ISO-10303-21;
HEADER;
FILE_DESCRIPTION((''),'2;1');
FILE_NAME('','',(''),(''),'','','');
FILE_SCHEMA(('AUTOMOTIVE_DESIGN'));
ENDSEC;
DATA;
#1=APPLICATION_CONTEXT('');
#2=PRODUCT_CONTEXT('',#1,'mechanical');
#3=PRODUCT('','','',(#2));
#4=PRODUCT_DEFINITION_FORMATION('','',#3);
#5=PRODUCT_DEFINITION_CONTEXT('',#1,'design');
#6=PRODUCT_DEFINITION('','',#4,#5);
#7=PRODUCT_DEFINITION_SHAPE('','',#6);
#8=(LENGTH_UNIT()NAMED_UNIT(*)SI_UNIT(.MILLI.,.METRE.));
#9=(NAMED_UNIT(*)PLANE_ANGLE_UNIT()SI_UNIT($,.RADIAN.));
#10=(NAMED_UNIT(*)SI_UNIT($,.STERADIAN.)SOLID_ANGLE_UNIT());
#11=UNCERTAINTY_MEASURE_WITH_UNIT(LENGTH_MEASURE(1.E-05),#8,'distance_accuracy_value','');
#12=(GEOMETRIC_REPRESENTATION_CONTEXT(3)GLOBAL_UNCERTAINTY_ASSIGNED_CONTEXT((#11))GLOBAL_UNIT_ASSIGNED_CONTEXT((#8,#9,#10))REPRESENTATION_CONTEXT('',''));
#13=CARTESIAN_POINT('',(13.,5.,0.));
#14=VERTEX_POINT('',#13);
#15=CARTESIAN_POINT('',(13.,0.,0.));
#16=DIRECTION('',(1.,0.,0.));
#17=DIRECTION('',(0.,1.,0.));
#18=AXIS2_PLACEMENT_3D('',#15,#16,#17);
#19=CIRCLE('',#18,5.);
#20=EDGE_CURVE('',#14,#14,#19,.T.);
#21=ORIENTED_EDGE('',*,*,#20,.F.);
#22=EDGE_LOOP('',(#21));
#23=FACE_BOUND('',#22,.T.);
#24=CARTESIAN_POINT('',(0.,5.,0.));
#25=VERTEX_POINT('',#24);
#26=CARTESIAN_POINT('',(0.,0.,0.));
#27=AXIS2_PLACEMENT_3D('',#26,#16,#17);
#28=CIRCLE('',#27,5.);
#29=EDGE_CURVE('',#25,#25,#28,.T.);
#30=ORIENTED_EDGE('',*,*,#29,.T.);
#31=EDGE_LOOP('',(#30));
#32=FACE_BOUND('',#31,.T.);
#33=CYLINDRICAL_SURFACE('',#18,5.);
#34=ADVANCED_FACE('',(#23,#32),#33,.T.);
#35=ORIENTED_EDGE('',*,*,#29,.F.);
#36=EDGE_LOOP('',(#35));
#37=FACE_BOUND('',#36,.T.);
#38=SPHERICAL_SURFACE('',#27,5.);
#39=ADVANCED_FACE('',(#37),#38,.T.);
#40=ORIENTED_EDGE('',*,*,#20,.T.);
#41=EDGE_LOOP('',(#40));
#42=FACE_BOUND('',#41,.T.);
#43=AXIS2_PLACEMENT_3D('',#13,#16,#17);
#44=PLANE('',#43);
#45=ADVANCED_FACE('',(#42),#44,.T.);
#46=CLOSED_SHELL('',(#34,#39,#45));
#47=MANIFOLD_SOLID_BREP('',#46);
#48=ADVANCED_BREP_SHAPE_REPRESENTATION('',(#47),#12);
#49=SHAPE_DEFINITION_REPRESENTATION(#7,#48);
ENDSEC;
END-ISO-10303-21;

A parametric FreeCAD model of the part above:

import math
import FreeCAD as App
import Part
import Sketcher

V = App.Vector

doc = App.newDocument("Part")
body = doc.addObject("PartDesign::Body", "Body")

sketch1 = body.newObject("Sketcher::SketchObject", "Sketch")
sketch1.AttachmentSupport = (doc.getObject("XY_Plane"), [""])
sketch1.MapMode = "FlatFace"
sketch1.addGeometry([
    Part.LineSegment(V(13, 5, 0), V(0, 5, 0)),
    Part.ArcOfCircle(Part.Circle(V(0, 0, 0), V(0, 0, 1), 5), math.radians(90), math.radians(180)),
    Part.LineSegment(V(-5, 0, 0), V(13, 0, 0)),
    Part.LineSegment(V(13, 0, 0), V(13, 5, 0)),
], False)
sketch1.addConstraint([
    Sketcher.Constraint("Tangent", 0, 2, 1, 1),
    Sketcher.Constraint("Coincident", 1, 2, 2, 1),
    Sketcher.Constraint("Coincident", 2, 2, 3, 1),
    Sketcher.Constraint("Coincident", 3, 2, 0, 1),
    Sketcher.Constraint("Horizontal", 0),
    Sketcher.Constraint("Horizontal", 2),
    Sketcher.Constraint("Vertical", 3),
    Sketcher.Constraint("Coincident", 1, 3, -1, 1),
    Sketcher.Constraint("PointOnObject", 1, 2, -1),
    Sketcher.Constraint("Radius", 1, 5.0),
    Sketcher.Constraint("DistanceX", 0, 2, 0, 1, 13.0),
])
revolution = body.newObject("PartDesign::Revolution", "Revolution")
revolution.Profile = sketch1
revolution.ReferenceAxis = (sketch1, ["H_Axis"])
revolution.Angle = 360

doc.recompute()
